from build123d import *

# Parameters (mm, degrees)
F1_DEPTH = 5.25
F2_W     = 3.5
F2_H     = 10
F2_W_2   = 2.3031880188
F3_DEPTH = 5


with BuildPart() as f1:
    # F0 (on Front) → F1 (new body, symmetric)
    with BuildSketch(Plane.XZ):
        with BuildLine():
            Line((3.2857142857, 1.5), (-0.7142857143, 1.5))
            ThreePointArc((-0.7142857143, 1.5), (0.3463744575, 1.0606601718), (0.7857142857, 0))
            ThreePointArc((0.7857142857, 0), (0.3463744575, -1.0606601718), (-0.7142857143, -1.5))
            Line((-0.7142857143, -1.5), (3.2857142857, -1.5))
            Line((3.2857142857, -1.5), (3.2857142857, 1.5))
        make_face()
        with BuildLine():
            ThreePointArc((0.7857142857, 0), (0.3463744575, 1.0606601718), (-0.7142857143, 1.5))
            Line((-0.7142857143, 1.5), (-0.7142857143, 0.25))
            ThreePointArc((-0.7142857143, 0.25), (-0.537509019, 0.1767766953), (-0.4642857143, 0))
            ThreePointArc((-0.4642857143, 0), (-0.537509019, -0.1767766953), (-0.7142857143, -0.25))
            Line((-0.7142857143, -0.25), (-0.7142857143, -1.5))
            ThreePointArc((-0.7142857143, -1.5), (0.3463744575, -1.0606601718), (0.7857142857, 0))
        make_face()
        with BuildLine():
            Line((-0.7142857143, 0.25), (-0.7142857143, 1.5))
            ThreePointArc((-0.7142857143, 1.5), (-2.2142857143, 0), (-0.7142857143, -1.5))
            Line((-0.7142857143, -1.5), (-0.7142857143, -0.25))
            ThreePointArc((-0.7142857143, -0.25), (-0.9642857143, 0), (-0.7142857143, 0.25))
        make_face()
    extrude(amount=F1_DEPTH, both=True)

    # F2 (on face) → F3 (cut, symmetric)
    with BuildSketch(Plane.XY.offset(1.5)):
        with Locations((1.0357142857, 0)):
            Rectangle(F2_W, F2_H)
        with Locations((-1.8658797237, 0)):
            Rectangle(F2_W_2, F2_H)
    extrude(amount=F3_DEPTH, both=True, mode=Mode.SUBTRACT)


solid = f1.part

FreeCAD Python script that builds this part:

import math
import FreeCAD as App
import Part
import Sketcher

V = App.Vector
Q = App.Units.Quantity

doc = App.newDocument("Part")
body = doc.addObject("PartDesign::Body", "Body")

# Sketch on XZ plane
sketch1 = body.newObject("Sketcher::SketchObject", "Sketch")
sketch1.AttachmentSupport = (doc.getObject("XZ_Plane"), [""])
sketch1.MapMode = "FlatFace"
sketch1.addGeometry(Part.LineSegment(V(3.29, 1.5, 0), V(-0.71, 1.5, 0)), False)
sketch1.addGeometry(Part.ArcOfCircle(Part.Circle(V(-0.71, 0, 0), V(0, 0, 1), 1.5), math.radians(90), math.radians(270)), False)
sketch1.addGeometry(Part.LineSegment(V(-0.71, -1.5, 0), V(3.29, -1.5, 0)), False)
sketch1.addGeometry(Part.LineSegment(V(3.29, -1.5, 0), V(3.29, 1.5, 0)), False)
sketch1.addGeometry(Part.ArcOfCircle(Part.Circle(V(-0.71, 0, 0), V(0, 0, 1), 0.25), math.radians(0), math.radians(90)), False)
sketch1.addGeometry(Part.ArcOfCircle(Part.Circle(V(-0.71, 0, 0), V(0, 0, 1), 0.25), math.radians(-90), math.radians(0)), False)
sketch1.addGeometry(Part.ArcOfCircle(Part.Circle(V(-0.71, 0, 0), V(0, 0, 1), 0.25), math.radians(90), math.radians(270)), False)
sketch1.addConstraint(Sketcher.Constraint("Tangent", 0, 2, 1, 1))
sketch1.addConstraint(Sketcher.Constraint("Tangent", 1, 2, 2, 1))
sketch1.addConstraint(Sketcher.Constraint("Coincident", 2, 2, 3, 1))
sketch1.addConstraint(Sketcher.Constraint("Coincident", 3, 2, 0, 1))
sketch1.addConstraint(Sketcher.Constraint("Tangent", 4, 1, 5, 2))
sketch1.addConstraint(Sketcher.Constraint("Tangent", 5, 1, 6, 2))
sketch1.addConstraint(Sketcher.Constraint("Tangent", 6, 1, 4, 2))
sketch1.addConstraint(Sketcher.Constraint("Horizontal", 0))
sketch1.addConstraint(Sketcher.Constraint("Horizontal", 2))
sketch1.addConstraint(Sketcher.Constraint("Vertical", 3))
sketch1.addConstraint(Sketcher.Constraint("Coincident", 4, 3, 1, 3))
sketch1.addConstraint(Sketcher.Constraint("Symmetric", 5, 1, 6, 1, -1))
sketch1.addConstraint(Sketcher.Constraint("PointOnObject", 4, 1, -1))
sketch1.addConstraint(Sketcher.Constraint("Vertical", 1, 2, 5, 1))
sketch1.addConstraint(Sketcher.Constraint("Radius", 1, Q("1.5 mm")))
sketch1.addConstraint(Sketcher.Constraint("DistanceX", 0, 2, 0, 1, Q("4 mm")))
sketch1.addConstraint(Sketcher.Constraint("Radius", 4, Q("0.25 mm")))
sketch1.addConstraint(Sketcher.Constraint("DistanceX", 1, 3, -1, 1, Q("0.714286 mm")))
pad1 = body.newObject("PartDesign::Pad", "Pad")
pad1.Profile = sketch1
pad1.Length = 10.5
pad1.Midplane = True

# Sketch on XY plane
sketch2 = body.newObject("Sketcher::SketchObject", "Sketch001")
sketch2.AttachmentSupport = (doc.getObject("XY_Plane"), [""])
sketch2.MapMode = "FlatFace"
sketch2.AttachmentOffset = App.Placement(V(0, 0, 1.5), App.Rotation())
sketch2.addGeometry(Part.LineSegment(V(3, -5, 0), V(3, 5, 0)), False)
sketch2.addGeometry(Part.LineSegment(V(3, 5, 0), V(-3, 5, 0)), False)
sketch2.addGeometry(Part.LineSegment(V(-3, 5, 0), V(-3, -5, 0)), False)
sketch2.addGeometry(Part.LineSegment(V(-3, -5, 0), V(3, -5, 0)), False)
sketch2.addConstraint(Sketcher.Constraint("Coincident", 0, 2, 1, 1))
sketch2.addConstraint(Sketcher.Constraint("Coincident", 1, 2, 2, 1))
sketch2.addConstraint(Sketcher.Constraint("Coincident", 2, 2, 3, 1))
sketch2.addConstraint(Sketcher.Constraint("Coincident", 3, 2, 0, 1))
sketch2.addConstraint(Sketcher.Constraint("Vertical", 0))
sketch2.addConstraint(Sketcher.Constraint("Horizontal", 1))
sketch2.addConstraint(Sketcher.Constraint("Vertical", 2))
sketch2.addConstraint(Sketcher.Constraint("Horizontal", 3))
sketch2.addConstraint(Sketcher.Constraint("DistanceY", 0, 1, 0, 2, Q("10 mm")))
sketch2.addConstraint(Sketcher.Constraint("DistanceY", -1, 1, 0, 2, Q("5 mm")))
sketch2.addConstraint(Sketcher.Constraint("DistanceX", 1, 2, 1, 1, Q("5.803188 mm")))
sketch2.addConstraint(Sketcher.Constraint("DistanceX", -1, 1, 0, 2, Q("2.785714 mm")))
pocket1 = body.newObject("PartDesign::Pocket", "Pocket")
pocket1.Profile = sketch2
pocket1.Length = 10
pocket1.Midplane = True

doc.recompute()
